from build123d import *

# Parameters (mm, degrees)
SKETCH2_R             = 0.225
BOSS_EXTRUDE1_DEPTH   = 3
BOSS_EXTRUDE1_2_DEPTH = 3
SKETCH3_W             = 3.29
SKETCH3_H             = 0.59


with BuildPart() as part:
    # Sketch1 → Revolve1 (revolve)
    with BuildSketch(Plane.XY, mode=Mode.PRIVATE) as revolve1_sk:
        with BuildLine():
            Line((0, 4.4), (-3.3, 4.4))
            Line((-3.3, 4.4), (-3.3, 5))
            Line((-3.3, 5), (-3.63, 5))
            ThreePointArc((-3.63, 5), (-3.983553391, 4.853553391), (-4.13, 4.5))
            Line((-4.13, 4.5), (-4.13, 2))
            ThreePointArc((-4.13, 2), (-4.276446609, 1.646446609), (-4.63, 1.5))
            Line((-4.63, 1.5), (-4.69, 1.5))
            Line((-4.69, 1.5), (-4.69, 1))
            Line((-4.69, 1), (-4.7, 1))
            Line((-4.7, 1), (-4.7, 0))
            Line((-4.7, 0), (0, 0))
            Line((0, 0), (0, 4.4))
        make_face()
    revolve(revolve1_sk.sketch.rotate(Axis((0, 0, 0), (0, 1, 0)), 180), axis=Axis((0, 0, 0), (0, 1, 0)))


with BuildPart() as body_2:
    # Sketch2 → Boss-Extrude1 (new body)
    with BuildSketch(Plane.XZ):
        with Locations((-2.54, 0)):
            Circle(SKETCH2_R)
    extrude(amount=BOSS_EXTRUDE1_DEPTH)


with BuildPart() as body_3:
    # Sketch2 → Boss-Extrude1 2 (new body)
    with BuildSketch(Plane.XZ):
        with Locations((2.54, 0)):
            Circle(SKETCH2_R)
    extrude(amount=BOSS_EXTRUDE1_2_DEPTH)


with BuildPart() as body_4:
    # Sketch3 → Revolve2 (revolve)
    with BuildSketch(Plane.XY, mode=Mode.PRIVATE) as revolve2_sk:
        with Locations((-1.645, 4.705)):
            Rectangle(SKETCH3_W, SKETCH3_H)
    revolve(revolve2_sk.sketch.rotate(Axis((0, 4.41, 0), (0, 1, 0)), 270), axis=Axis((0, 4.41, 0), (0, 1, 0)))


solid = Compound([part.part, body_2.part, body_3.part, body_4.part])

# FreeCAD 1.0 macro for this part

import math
import FreeCAD as App
import Part
import Sketcher


def add_polygon(sketch, points):
    """Adds a closed chain of lines whose ends are joined by coincident constraints."""
    first, n = sketch.GeometryCount, len(points)
    for a, b in zip(points, points[1:] + points[:1]):
        sketch.addGeometry(Part.LineSegment(App.Vector(*a, 0), App.Vector(*b, 0)), False)
    for i in range(n):
        sketch.addConstraint(Sketcher.Constraint("Coincident", first + i, 2, first + (i + 1) % n, 1))

doc = App.newDocument("Part")
body = doc.addObject("PartDesign::Body", "Body")

sketch1 = doc.addObject("Sketcher::SketchObject", "Sketch")
body.addObject(sketch1)
sketch1.AttachmentSupport = (doc.XY_Plane, [""])
sketch1.MapMode = "FlatFace"
sketch1.addGeometry([
    Part.LineSegment(App.Vector(0, 4.4, 0), App.Vector(-3.3, 4.4, 0)),
    Part.LineSegment(App.Vector(-3.3, 4.4, 0), App.Vector(-3.3, 5, 0)),
    Part.LineSegment(App.Vector(-3.3, 5, 0), App.Vector(-3.63, 5, 0)),
    Part.ArcOfCircle(Part.Circle(App.Vector(-3.63, 4.5, 0), App.Vector(0, 0, 1), 0.5), math.radians(90), math.radians(180)),
    Part.LineSegment(App.Vector(-4.13, 4.5, 0), App.Vector(-4.13, 2, 0)),
    Part.ArcOfCircle(Part.Circle(App.Vector(-4.63, 2, 0), App.Vector(0, 0, 1), 0.5), math.radians(-90), math.radians(0)),
    Part.LineSegment(App.Vector(-4.63, 1.5, 0), App.Vector(-4.69, 1.5, 0)),
    Part.LineSegment(App.Vector(-4.69, 1.5, 0), App.Vector(-4.69, 1, 0)),
    Part.LineSegment(App.Vector(-4.69, 1, 0), App.Vector(-4.7, 1, 0)),
    Part.LineSegment(App.Vector(-4.7, 1, 0), App.Vector(-4.7, 0, 0)),
    Part.LineSegment(App.Vector(-4.7, 0, 0), App.Vector(0, 0, 0)),
    Part.LineSegment(App.Vector(0, 0, 0), App.Vector(0, 4.4, 0)),
], False)
sketch1.addConstraint([
    Sketcher.Constraint("Coincident", 0, 2, 1, 1),
    Sketcher.Constraint("Coincident", 1, 2, 2, 1),
    Sketcher.Constraint("Tangent", 2, 2, 3, 1),
    Sketcher.Constraint("Tangent", 3, 2, 4, 1),
    Sketcher.Constraint("Tangent", 4, 2, 5, 2),
    Sketcher.Constraint("Tangent", 5, 1, 6, 1),
    Sketcher.Constraint("Coincident", 6, 2, 7, 1),
    Sketcher.Constraint("Coincident", 7, 2, 8, 1),
    Sketcher.Constraint("Coincident", 8, 2, 9, 1),
    Sketcher.Constraint("Coincident", 9, 2, 10, 1),
    Sketcher.Constraint("Coincident", 10, 2, 11, 1),
    Sketcher.Constraint("Coincident", 11, 2, 0, 1),
    Sketcher.Constraint("Horizontal", 0),
    Sketcher.Constraint("Vertical", 1),
    Sketcher.Constraint("Horizontal", 2),
    Sketcher.Constraint("Vertical", 4),
    Sketcher.Constraint("Horizontal", 6),
    Sketcher.Constraint("Vertical", 7),
    Sketcher.Constraint("Horizontal", 8),
    Sketcher.Constraint("Vertical", 9),
    Sketcher.Constraint("Horizontal", 10),
    Sketcher.Constraint("Vertical", 11),
    Sketcher.Constraint("Coincident", 10, 2, -1, 1),
    Sketcher.Constraint("Equal", 3, 5),
    Sketcher.Constraint("Radius", 3, 0.5),
    Sketcher.Constraint("DistanceY", 9, 2, 9, 1, 1.0),
    Sketcher.Constraint("DistanceX", 0, 2, 0, 1, 3.3),
    Sketcher.Constraint("DistanceX", 10, 1, 10, 2, 4.7),
    Sketcher.Constraint("DistanceY", 1, 1, 1, 2, 0.6),
    Sketcher.Constraint("DistanceY", 4, 2, 4, 1, 2.5),
    Sketcher.Constraint("DistanceY", 7, 2, 7, 1, 0.5),
    Sketcher.Constraint("DistanceX", 2, 2, 2, 1, 0.33),
    Sketcher.Constraint("DistanceX", 6, 2, 6, 1, 0.06),
])
revolution = doc.addObject("PartDesign::Revolution", "Revolution")
body.addObject(revolution)
revolution.Profile = sketch1
revolution.ReferenceAxis = (sketch1, ["V_Axis"])
revolution.Angle = 360
body2 = doc.addObject("PartDesign::Body", "Body001")

sketch2 = doc.addObject("Sketcher::SketchObject", "Sketch001")
body2.addObject(sketch2)
sketch2.AttachmentSupport = (doc.getObject("XZ_Plane001"), [""])
sketch2.MapMode = "FlatFace"
sketch2.addGeometry(Part.Circle(App.Vector(-2.54, 0, 0), App.Vector(0, 0, 1), 0.23), False)
sketch2.addConstraint([
    Sketcher.Constraint("PointOnObject", 0, 3, -1),
    Sketcher.Constraint("Diameter", 0, 0.45),
    Sketcher.Constraint("DistanceX", 0, 3, -1, 1, 2.54),
])
pad1 = doc.addObject("PartDesign::Pad", "Pad")
body2.addObject(pad1)
pad1.Profile = sketch2
pad1.Length = 3
body3 = doc.addObject("PartDesign::Body", "Body002")

sketch3 = doc.addObject("Sketcher::SketchObject", "Sketch002")
body3.addObject(sketch3)
sketch3.AttachmentSupport = (doc.getObject("XZ_Plane002"), [""])
sketch3.MapMode = "FlatFace"
sketch3.addGeometry(Part.Circle(App.Vector(2.54, 0, 0), App.Vector(0, 0, 1), 0.23), False)
sketch3.addConstraint([
    Sketcher.Constraint("PointOnObject", 0, 3, -1),
    Sketcher.Constraint("Diameter", 0, 0.45),
    Sketcher.Constraint("DistanceX", -1, 1, 0, 3, 2.54),
])
pad2 = doc.addObject("PartDesign::Pad", "Pad001")
body3.addObject(pad2)
pad2.Profile = sketch3
pad2.Length = 3
body4 = doc.addObject("PartDesign::Body", "Body003")

sketch4 = doc.addObject("Sketcher::SketchObject", "Sketch003")
body4.addObject(sketch4)
sketch4.AttachmentSupport = (doc.getObject("XY_Plane003"), [""])
sketch4.MapMode = "FlatFace"
add_polygon(sketch4, [(-3.3, 5), (-3.3, 4.4), (0, 4.4), (0, 5)])
sketch4.addConstraint([
    Sketcher.Constraint("Vertical", 0),
    Sketcher.Constraint("Horizontal", 1),
    Sketcher.Constraint("Vertical", 2),
    Sketcher.Constraint("Horizontal", 3),
    Sketcher.Constraint("PointOnObject", 1, 2, -2),
    Sketcher.Constraint("DistanceY", -1, 1, 2, 2, 5.0),
    Sketcher.Constraint("DistanceX", 1, 1, 1, 2, 3.29),
    Sketcher.Constraint("DistanceY", 0, 2, 0, 1, 0.59),
])
revolution2 = doc.addObject("PartDesign::Revolution", "Revolution001")
body4.addObject(revolution2)
revolution2.Profile = sketch4
revolution2.ReferenceAxis = (sketch4, ["V_Axis"])
revolution2.Angle = 360

doc.recompute()
